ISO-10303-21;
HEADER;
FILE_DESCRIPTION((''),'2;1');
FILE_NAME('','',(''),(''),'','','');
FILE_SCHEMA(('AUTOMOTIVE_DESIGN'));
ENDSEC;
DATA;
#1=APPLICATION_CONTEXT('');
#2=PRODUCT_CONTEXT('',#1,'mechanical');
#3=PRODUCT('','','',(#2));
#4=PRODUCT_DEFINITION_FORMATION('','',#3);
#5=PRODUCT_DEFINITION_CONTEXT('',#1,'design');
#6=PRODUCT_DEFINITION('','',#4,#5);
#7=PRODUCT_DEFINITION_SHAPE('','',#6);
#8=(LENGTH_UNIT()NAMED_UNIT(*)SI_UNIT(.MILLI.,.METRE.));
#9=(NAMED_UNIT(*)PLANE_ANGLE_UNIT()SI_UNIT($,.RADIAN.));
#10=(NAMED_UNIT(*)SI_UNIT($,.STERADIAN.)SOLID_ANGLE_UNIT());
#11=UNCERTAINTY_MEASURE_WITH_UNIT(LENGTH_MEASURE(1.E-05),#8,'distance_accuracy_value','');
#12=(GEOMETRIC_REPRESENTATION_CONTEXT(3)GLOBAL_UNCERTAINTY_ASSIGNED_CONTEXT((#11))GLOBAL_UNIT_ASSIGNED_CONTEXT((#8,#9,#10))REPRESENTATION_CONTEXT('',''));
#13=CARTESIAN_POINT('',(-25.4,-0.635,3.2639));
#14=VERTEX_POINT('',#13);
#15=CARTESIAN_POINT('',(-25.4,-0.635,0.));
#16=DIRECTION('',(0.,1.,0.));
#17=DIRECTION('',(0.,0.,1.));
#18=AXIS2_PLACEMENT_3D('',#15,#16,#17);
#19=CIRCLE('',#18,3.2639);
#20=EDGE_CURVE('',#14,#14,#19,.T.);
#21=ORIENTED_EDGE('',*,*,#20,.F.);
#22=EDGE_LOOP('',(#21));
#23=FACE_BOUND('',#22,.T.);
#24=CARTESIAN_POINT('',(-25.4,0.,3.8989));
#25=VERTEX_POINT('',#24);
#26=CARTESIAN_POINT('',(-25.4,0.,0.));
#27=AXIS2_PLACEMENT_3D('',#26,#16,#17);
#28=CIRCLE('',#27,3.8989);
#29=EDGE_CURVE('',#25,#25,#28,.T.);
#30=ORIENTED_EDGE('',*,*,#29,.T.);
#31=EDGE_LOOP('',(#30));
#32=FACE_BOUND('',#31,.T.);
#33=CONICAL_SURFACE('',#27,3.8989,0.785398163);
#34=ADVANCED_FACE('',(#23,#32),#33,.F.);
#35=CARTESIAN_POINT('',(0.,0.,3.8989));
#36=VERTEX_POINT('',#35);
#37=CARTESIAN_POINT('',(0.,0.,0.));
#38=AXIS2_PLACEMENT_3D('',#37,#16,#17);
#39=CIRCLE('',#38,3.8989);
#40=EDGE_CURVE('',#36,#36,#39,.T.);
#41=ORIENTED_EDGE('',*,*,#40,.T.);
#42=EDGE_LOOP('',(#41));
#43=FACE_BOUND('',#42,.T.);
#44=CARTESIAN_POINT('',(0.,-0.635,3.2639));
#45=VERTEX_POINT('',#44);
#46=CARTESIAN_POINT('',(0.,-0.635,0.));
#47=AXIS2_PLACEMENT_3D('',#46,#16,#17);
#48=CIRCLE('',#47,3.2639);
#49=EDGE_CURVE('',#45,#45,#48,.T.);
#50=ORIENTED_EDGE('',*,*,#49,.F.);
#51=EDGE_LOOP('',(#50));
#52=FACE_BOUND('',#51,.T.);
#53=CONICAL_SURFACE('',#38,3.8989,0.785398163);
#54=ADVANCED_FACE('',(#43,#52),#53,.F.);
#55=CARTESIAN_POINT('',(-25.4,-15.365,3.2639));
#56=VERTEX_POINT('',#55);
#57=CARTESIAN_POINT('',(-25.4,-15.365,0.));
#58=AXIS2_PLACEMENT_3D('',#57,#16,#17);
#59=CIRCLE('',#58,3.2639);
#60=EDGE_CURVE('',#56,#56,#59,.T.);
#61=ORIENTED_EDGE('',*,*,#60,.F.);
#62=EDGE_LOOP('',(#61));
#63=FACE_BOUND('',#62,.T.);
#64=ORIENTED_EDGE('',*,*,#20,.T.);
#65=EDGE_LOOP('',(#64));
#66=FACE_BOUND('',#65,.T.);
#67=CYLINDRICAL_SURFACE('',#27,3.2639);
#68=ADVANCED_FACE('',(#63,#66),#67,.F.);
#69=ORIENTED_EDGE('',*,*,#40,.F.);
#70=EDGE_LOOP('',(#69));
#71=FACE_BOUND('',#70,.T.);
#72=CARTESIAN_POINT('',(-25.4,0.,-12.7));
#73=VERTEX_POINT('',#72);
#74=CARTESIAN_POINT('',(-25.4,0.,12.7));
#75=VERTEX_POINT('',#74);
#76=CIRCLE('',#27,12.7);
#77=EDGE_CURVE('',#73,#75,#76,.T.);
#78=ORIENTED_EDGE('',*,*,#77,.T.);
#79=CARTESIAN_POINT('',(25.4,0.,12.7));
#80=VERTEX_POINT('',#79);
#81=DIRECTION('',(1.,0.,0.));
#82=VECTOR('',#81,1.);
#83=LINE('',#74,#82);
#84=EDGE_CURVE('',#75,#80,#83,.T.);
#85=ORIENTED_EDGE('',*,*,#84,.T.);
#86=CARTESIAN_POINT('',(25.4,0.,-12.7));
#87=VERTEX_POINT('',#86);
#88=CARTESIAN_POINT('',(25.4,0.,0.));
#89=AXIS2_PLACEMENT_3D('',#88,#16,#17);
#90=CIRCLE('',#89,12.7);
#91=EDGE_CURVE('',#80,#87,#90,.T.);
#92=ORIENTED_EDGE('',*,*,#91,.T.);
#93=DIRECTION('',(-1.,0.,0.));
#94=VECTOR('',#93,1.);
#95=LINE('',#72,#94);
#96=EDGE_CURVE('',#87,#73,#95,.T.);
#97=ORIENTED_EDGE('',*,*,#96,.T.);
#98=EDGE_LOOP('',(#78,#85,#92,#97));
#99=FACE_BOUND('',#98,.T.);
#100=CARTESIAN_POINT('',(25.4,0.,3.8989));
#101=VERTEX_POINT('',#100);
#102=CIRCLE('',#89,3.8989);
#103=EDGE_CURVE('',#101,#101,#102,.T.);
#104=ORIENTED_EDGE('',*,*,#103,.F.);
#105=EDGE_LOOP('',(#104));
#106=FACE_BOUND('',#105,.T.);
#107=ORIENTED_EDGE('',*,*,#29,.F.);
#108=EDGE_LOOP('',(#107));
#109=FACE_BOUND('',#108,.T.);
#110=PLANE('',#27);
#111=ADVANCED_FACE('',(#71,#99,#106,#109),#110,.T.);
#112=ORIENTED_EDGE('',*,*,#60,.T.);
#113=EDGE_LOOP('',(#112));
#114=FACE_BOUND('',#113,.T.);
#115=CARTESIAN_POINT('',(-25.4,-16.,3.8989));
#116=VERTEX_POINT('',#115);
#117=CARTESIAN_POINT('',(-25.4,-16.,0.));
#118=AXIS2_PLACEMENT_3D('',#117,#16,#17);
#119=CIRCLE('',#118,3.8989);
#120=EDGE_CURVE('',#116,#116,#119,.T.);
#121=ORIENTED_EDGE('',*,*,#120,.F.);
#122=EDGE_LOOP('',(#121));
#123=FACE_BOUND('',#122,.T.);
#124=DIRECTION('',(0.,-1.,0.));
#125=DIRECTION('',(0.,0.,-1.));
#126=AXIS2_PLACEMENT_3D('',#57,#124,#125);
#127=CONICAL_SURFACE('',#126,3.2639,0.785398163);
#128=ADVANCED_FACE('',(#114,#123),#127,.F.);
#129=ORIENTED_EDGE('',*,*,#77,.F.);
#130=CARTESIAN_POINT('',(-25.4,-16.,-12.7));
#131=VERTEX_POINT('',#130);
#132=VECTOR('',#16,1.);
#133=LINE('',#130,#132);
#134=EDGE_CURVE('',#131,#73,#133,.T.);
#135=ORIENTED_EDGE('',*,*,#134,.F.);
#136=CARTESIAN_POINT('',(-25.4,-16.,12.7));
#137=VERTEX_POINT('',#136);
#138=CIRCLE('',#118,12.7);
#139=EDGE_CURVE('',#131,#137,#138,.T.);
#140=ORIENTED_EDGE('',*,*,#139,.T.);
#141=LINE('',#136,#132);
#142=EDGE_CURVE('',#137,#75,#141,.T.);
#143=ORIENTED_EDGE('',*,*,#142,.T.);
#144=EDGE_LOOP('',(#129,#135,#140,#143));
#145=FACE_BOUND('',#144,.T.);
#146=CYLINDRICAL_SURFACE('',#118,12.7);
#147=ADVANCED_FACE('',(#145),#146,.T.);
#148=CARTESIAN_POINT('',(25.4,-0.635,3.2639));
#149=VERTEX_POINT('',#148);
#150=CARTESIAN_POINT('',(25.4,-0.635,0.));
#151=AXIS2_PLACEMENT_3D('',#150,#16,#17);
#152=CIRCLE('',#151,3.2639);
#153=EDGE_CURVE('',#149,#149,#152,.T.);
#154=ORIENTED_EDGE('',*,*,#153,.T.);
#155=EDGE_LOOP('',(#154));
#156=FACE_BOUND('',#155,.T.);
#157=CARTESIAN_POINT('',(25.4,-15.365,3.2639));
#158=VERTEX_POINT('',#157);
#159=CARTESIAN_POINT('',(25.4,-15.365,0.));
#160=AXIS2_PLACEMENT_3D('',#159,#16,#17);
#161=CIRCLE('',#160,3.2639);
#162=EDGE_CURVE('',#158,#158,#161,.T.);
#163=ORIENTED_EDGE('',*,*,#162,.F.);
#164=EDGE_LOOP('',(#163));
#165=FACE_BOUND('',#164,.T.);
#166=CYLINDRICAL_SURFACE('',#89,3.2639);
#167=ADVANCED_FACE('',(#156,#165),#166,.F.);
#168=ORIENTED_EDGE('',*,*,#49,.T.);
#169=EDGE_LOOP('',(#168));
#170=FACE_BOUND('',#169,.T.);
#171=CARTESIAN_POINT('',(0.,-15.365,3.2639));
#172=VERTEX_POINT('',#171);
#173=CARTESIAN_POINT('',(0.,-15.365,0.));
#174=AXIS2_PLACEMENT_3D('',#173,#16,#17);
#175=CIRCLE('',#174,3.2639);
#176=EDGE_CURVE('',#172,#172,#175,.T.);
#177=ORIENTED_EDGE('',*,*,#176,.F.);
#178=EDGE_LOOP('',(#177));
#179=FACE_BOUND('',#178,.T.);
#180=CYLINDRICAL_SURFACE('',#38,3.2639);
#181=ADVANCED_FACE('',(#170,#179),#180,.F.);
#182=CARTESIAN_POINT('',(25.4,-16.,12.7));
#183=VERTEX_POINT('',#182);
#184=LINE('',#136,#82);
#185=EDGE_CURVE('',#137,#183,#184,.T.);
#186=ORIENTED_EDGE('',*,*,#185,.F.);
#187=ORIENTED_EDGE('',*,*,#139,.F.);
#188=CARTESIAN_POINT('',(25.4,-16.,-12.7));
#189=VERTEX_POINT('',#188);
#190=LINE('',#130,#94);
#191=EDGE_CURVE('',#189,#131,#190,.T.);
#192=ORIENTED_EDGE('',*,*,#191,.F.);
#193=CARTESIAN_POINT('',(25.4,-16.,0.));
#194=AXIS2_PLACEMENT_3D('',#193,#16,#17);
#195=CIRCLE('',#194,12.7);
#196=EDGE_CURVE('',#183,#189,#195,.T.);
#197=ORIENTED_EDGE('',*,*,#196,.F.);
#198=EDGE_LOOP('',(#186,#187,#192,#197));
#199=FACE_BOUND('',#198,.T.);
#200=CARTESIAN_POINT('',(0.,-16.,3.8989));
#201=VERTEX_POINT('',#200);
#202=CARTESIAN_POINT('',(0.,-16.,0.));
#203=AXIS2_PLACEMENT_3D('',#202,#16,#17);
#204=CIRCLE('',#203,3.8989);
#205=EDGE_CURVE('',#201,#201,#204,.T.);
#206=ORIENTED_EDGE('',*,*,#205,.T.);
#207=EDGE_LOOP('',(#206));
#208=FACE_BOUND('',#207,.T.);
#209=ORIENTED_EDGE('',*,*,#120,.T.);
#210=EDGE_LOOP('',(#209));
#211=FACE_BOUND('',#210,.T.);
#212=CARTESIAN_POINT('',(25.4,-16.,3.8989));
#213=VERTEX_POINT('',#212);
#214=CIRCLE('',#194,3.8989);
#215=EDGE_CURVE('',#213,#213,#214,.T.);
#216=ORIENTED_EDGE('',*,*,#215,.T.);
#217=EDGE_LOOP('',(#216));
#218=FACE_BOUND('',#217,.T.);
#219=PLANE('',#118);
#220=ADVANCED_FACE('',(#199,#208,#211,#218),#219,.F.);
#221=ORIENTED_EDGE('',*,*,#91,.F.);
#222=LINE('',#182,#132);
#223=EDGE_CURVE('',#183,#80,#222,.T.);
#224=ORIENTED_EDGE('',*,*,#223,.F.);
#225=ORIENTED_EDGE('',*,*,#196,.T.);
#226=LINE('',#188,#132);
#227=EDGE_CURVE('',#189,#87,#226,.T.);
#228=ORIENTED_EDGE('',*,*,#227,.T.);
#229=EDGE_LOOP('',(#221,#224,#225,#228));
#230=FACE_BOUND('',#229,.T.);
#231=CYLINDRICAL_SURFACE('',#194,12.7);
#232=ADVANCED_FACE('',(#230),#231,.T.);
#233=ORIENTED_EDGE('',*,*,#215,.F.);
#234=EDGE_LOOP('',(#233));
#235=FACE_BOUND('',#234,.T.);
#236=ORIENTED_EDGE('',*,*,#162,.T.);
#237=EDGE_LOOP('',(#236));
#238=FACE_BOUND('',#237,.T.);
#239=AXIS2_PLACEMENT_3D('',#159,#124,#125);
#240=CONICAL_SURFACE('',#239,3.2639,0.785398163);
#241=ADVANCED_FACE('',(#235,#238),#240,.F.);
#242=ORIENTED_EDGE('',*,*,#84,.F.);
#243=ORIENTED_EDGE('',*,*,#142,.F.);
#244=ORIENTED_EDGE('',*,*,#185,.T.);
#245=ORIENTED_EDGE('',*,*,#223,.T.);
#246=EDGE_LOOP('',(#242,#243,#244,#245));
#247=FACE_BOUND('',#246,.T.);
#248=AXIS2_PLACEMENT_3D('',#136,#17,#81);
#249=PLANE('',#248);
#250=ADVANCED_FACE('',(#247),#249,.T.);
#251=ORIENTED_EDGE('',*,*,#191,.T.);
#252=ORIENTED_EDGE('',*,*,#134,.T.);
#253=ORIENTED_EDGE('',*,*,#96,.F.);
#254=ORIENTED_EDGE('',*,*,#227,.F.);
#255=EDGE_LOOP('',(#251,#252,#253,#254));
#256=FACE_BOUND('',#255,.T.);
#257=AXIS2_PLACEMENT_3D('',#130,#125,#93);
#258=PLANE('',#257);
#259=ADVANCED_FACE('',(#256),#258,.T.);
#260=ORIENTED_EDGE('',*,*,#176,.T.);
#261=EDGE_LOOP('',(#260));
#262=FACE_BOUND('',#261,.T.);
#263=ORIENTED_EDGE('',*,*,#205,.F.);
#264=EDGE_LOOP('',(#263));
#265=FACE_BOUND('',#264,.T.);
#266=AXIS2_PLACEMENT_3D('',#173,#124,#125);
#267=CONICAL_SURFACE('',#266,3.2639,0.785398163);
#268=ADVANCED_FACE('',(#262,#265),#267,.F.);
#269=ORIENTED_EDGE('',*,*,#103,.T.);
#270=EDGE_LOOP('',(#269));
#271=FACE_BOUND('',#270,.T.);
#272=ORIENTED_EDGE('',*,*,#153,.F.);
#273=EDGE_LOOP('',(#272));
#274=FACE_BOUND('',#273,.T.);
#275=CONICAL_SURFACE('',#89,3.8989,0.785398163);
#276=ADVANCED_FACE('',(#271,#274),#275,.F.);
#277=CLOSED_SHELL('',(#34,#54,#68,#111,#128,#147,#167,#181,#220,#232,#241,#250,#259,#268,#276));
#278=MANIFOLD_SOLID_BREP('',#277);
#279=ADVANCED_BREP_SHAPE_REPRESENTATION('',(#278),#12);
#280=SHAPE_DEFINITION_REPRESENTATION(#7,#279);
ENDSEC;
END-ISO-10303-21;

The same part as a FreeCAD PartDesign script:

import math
import FreeCAD as App
import Part
import Sketcher
from FreeCAD import Vector
Q = App.Units.Quantity


def add_polygon(sketch, points):
    """Adds a closed chain of lines whose ends are joined by coincident constraints."""
    first, n = sketch.GeometryCount, len(points)
    for a, b in zip(points, points[1:] + points[:1]):
        sketch.addGeometry(Part.LineSegment(App.Vector(*a, 0), App.Vector(*b, 0)), False)
    for i in range(n):
        sketch.addConstraint(Sketcher.Constraint("Coincident", first + i, 2, first + (i + 1) % n, 1))

doc = App.newDocument("Part")
body = doc.addObject("PartDesign::Body", "Body")

sketch1 = body.newObject("Sketcher::SketchObject", "Sketch")
sketch1.AttachmentSupport = (doc.getObject("XZ_Plane"), [""])
sketch1.MapMode = "FlatFace"
sketch1.addGeometry(Part.LineSegment(Vector(25, -13, 0), Vector(-25, -13, 0)), False)
sketch1.addGeometry(Part.ArcOfCircle(Part.Circle(Vector(-25, 0, 0), Vector(0, 0, 1), 13), math.radians(90), math.radians(270)), False)
sketch1.addGeometry(Part.LineSegment(Vector(-25, 13, 0), Vector(25, 13, 0)), False)
sketch1.addGeometry(Part.ArcOfCircle(Part.Circle(Vector(25, 0, 0), Vector(0, 0, 1), 13), math.radians(-90), math.radians(90)), False)
sketch1.addConstraint(Sketcher.Constraint("Tangent", 0, 2, 1, 2))
sketch1.addConstraint(Sketcher.Constraint("Tangent", 1, 1, 2, 1))
sketch1.addConstraint(Sketcher.Constraint("Tangent", 2, 2, 3, 2))
sketch1.addConstraint(Sketcher.Constraint("Tangent", 3, 1, 0, 1))
sketch1.addConstraint(Sketcher.Constraint("Horizontal", 0))
sketch1.addConstraint(Sketcher.Constraint("Horizontal", 2))
sketch1.addConstraint(Sketcher.Constraint("Symmetric", 1, 3, 3, 3, -1, 1))
sketch1.addConstraint(Sketcher.Constraint("Radius", 1, Q("0.5 in")))
sketch1.addConstraint(Sketcher.Constraint("DistanceX", 0, 2, 0, 1, Q("2 in")))
pad1 = body.newObject("PartDesign::Pad", "Pad")
pad1.Profile = sketch1
pad1.Length = 16

sketch2 = body.newObject("Sketcher::SketchObject", "Sketch001")
sketch2.AttachmentSupport = (doc.getObject("YZ_Plane"), [""])
sketch2.MapMode = "FlatFace"
add_polygon(sketch2, [(-16, 0), (0, 0), (0, 3.9), (-0.6, 3.3), (-15.4, 3.3), (-16, 3.9)])
sketch2.addConstraint(Sketcher.Constraint("Horizontal", 0))
sketch2.addConstraint(Sketcher.Constraint("Vertical", 1))
sketch2.addConstraint(Sketcher.Constraint("Horizontal", 3))
sketch2.addConstraint(Sketcher.Constraint("Vertical", 5))
sketch2.addConstraint(Sketcher.Constraint("Coincident", 0, 2, -1, 1))
sketch2.addConstraint(Sketcher.Constraint("Perpendicular", 2, 4))
sketch2.addConstraint(Sketcher.Constraint("Horizontal", 1, 2, 4, 2))
sketch2.addConstraint(Sketcher.Constraint("Equal", 2, 4))
sketch2.addConstraint(Sketcher.Constraint("DistanceY", 1, 1, 1, 2, Q("0.1535 in")))
sketch2.addConstraint(Sketcher.Constraint("DistanceX", 2, 2, -1, 1, Q("0.025 in")))
sketch2.addConstraint(Sketcher.Constraint("DistanceX", 0, 1, 0, 2, Q("16 mm")))
groove = body.newObject("PartDesign::Groove", "Groove")
groove.Profile = sketch2
groove.ReferenceAxis = (sketch2, ["H_Axis"])
groove.Angle = 360
doc.recompute()

linearpattern = body.newObject("PartDesign::LinearPattern", "LinearPattern")
linearpattern.Originals = [groove]
linearpattern.Direction = (doc.getObject("X_Axis"), [""])
linearpattern.Mode = "offset"
linearpattern.Offset = Q("1 in")
linearpattern.Occurrences = 2
linearpattern.Reversed = True
body.Tip = linearpattern
doc.recompute()

linearpattern2 = body.newObject("PartDesign::LinearPattern", "LinearPattern001")
linearpattern2.Originals = [groove]
linearpattern2.Direction = (doc.getObject("X_Axis"), [""])
linearpattern2.Mode = "offset"
linearpattern2.Offset = Q("1 in")
linearpattern2.Occurrences = 2
body.Tip = linearpattern2

doc.recompute()
